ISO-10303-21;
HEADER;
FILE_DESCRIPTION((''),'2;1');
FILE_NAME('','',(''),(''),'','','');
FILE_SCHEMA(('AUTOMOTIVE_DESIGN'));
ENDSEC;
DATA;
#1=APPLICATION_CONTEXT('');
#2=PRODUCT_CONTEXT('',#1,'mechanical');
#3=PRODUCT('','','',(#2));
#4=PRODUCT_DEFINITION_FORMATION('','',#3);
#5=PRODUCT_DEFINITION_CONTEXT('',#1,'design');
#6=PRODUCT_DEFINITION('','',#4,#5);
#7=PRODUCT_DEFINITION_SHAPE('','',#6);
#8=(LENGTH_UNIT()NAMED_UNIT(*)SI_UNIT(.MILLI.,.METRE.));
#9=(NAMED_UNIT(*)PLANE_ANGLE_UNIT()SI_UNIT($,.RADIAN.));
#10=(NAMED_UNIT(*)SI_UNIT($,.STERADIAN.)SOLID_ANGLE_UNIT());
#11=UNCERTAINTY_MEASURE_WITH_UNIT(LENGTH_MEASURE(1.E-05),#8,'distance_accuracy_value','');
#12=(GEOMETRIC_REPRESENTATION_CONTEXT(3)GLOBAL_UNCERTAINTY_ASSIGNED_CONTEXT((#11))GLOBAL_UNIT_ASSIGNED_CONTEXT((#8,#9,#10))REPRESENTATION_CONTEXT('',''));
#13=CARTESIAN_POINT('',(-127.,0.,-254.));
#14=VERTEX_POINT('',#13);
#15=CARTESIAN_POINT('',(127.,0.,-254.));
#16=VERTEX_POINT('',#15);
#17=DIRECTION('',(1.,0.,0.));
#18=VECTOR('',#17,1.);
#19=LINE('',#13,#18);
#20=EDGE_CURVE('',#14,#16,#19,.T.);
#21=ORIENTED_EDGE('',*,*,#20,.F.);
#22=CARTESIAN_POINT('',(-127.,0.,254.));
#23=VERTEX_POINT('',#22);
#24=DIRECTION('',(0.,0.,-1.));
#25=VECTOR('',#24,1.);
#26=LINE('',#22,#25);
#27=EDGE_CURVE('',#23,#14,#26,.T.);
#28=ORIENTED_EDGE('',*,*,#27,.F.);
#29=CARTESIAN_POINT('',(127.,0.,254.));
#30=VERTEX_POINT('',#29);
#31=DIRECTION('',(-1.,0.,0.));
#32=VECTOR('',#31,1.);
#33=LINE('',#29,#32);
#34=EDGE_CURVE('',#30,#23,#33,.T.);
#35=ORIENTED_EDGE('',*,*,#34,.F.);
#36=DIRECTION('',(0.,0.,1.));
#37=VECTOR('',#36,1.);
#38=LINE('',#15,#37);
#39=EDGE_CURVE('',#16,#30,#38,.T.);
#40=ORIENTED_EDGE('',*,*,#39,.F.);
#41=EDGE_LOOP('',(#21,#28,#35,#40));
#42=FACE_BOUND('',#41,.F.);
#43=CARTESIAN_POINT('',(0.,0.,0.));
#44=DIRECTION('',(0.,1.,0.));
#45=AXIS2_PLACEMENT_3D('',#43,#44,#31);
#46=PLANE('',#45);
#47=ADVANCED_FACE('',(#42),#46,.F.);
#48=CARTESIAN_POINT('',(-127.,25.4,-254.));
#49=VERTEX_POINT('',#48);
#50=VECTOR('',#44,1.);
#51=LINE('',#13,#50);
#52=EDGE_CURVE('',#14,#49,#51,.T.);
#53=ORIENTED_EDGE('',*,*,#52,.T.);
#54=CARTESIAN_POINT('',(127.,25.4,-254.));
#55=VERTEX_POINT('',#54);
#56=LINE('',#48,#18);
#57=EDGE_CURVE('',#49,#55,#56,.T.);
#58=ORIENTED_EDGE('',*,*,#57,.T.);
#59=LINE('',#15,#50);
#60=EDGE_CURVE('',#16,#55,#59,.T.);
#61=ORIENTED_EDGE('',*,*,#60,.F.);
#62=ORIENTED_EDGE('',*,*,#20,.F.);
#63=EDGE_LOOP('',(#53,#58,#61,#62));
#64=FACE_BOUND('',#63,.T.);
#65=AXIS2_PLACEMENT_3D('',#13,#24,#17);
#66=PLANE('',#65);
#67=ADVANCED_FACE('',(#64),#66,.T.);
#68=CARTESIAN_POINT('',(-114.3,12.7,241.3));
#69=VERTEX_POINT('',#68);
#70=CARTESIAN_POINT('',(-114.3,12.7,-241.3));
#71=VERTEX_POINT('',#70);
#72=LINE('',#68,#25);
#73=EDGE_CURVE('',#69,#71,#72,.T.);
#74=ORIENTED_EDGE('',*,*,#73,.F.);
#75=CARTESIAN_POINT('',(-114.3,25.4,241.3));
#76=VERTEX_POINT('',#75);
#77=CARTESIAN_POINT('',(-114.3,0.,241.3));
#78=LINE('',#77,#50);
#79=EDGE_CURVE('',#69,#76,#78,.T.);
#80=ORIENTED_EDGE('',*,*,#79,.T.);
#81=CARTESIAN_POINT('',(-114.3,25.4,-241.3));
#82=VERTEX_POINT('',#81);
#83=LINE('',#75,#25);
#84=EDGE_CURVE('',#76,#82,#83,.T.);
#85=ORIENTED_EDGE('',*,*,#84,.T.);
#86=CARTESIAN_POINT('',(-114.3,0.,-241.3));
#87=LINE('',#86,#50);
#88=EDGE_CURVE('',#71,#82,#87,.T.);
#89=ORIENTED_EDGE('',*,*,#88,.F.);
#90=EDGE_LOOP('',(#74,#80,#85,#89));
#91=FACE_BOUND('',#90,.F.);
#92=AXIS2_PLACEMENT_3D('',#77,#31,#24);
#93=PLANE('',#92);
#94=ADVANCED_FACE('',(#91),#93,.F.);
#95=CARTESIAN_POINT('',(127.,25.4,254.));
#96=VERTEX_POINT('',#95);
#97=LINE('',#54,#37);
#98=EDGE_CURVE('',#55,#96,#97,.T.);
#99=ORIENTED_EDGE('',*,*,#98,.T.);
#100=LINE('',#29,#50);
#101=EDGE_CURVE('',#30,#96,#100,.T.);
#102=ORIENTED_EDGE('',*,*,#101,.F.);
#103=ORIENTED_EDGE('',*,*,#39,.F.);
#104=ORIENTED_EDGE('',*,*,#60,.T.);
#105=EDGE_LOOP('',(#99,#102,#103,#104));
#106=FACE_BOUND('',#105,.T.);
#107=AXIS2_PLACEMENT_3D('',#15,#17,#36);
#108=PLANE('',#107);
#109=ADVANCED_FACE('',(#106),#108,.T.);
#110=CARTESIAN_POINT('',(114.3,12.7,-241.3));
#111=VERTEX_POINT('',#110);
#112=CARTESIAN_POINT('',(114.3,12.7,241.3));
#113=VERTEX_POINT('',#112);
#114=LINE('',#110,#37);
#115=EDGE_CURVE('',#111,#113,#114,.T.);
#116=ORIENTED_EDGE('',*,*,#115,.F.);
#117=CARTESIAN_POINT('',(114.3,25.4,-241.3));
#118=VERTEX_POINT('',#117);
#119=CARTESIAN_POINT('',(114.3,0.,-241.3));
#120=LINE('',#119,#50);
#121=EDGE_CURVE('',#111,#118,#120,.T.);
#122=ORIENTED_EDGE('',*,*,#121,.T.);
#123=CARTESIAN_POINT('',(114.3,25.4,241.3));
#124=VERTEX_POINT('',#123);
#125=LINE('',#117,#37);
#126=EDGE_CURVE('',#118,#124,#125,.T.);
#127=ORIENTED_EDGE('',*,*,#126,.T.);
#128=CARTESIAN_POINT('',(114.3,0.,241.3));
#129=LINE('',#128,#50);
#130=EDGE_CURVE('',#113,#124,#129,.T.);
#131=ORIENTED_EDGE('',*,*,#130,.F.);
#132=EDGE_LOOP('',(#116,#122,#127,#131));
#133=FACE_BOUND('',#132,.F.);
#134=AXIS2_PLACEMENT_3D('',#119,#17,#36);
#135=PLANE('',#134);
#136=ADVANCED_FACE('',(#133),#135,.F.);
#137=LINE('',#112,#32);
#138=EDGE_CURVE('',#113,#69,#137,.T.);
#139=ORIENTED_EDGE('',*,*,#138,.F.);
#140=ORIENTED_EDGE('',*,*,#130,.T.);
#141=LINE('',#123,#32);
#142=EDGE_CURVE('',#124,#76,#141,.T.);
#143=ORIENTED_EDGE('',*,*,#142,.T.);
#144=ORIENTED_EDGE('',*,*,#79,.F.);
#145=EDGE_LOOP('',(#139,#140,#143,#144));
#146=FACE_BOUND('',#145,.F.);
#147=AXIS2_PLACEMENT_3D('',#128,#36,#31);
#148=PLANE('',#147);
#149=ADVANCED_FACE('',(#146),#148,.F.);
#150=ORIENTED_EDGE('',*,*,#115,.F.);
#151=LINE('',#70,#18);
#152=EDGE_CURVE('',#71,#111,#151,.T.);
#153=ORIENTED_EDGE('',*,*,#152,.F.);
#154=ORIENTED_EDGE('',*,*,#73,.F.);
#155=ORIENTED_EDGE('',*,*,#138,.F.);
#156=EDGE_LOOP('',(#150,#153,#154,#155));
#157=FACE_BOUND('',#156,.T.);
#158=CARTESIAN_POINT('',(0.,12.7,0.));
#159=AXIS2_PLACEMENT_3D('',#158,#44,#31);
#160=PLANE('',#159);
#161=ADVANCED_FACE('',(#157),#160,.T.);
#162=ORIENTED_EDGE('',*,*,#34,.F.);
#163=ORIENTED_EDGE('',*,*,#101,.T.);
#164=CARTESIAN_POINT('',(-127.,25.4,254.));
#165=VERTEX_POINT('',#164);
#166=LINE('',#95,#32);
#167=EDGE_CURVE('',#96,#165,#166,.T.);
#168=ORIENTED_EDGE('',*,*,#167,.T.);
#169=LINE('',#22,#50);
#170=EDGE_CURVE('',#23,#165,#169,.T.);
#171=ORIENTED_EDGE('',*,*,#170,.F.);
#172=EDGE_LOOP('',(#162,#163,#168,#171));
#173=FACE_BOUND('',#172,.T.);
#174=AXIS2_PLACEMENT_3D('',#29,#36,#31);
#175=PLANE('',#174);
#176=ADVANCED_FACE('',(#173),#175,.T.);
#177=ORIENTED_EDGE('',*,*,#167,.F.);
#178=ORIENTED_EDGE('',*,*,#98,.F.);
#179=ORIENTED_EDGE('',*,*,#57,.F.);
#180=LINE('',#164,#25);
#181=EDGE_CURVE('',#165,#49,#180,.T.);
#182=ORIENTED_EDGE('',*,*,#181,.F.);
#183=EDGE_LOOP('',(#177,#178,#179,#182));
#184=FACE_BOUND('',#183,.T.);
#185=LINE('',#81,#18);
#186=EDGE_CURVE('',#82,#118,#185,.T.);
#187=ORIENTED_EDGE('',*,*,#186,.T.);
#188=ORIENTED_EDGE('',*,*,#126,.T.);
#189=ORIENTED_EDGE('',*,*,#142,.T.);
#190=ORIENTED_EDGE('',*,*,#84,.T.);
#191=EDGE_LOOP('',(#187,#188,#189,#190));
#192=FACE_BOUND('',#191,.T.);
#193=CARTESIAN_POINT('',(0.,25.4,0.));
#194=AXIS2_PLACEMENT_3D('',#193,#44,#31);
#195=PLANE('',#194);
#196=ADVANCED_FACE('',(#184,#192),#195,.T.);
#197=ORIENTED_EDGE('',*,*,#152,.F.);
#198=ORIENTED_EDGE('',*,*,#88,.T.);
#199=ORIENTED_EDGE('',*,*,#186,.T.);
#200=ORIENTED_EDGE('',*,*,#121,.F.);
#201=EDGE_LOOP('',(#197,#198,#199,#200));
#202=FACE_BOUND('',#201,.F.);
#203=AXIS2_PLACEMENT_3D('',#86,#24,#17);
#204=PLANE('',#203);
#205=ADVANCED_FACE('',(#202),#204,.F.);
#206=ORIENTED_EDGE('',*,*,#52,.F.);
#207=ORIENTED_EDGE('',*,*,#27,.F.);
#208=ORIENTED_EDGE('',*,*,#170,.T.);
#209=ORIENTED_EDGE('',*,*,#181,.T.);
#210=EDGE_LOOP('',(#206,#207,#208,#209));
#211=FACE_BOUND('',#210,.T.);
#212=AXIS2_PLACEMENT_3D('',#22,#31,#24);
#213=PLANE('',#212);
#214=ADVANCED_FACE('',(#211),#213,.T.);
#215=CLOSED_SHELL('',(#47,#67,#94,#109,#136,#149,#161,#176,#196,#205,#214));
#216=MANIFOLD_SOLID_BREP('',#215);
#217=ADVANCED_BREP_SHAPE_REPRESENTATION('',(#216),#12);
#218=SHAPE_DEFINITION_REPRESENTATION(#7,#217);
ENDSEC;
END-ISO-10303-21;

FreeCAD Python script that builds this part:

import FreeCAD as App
import Part
import Sketcher
from FreeCAD import Vector
Q = App.Units.Quantity

doc = App.newDocument("Part")
body = doc.addObject("PartDesign::Body", "Body")

sketch1 = body.newObject("Sketcher::SketchObject", "Sketch")
sketch1.AttachmentSupport = (doc.getObject("XZ_Plane"), [""])
sketch1.MapMode = "FlatFace"
sketch1.addGeometry(Part.LineSegment(Vector(-114, 241, 0), Vector(114, 241, 0)), False)
sketch1.addGeometry(Part.LineSegment(Vector(114, 241, 0), Vector(114, -241, 0)), False)
sketch1.addGeometry(Part.LineSegment(Vector(114, -241, 0), Vector(-114, -241, 0)), False)
sketch1.addGeometry(Part.LineSegment(Vector(-114, -241, 0), Vector(-114, 241, 0)), False)
sketch1.addConstraint(Sketcher.Constraint("Coincident", 0, 2, 1, 1))
sketch1.addConstraint(Sketcher.Constraint("Coincident", 1, 2, 2, 1))
sketch1.addConstraint(Sketcher.Constraint("Coincident", 2, 2, 3, 1))
sketch1.addConstraint(Sketcher.Constraint("Coincident", 3, 2, 0, 1))
sketch1.addConstraint(Sketcher.Constraint("Horizontal", 0))
sketch1.addConstraint(Sketcher.Constraint("Vertical", 1))
sketch1.addConstraint(Sketcher.Constraint("Horizontal", 2))
sketch1.addConstraint(Sketcher.Constraint("Vertical", 3))
sketch1.addConstraint(Sketcher.Constraint("Symmetric", 0, 2, 2, 2, -1, 1))
sketch1.addConstraint(Sketcher.Constraint("DistanceX", 0, 1, 0, 2, Q("9 in")))
sketch1.addConstraint(Sketcher.Constraint("DistanceY", 1, 2, 1, 1, Q("19 in")))
pad1 = body.newObject("PartDesign::Pad", "Pad")
pad1.Profile = sketch1
pad1.Length = Q("0.5 in")
pad1.Reversed = True

sketch2 = body.newObject("Sketcher::SketchObject", "Sketch001")
sketch2.AttachmentSupport = (doc.getObject("XZ_Plane"), [""])
sketch2.MapMode = "FlatFace"
sketch2.addGeometry(Part.LineSegment(Vector(-127, 254, 0), Vector(127, 254, 0)), False)
sketch2.addGeometry(Part.LineSegment(Vector(127, 254, 0), Vector(127, -254, 0)), False)
sketch2.addGeometry(Part.LineSegment(Vector(127, -254, 0), Vector(-127, -254, 0)), False)
sketch2.addGeometry(Part.LineSegment(Vector(-127, -254, 0), Vector(-127, 254, 0)), False)
sketch2.addGeometry(Part.LineSegment(Vector(114, -241, 0), Vector(114, 241, 0)), False)
sketch2.addGeometry(Part.LineSegment(Vector(114, 241, 0), Vector(-114, 241, 0)), False)
sketch2.addGeometry(Part.LineSegment(Vector(-114, 241, 0), Vector(-114, -241, 0)), False)
sketch2.addGeometry(Part.LineSegment(Vector(-114, -241, 0), Vector(114, -241, 0)), False)
sketch2.addConstraint(Sketcher.Constraint("Coincident", 0, 2, 1, 1))
sketch2.addConstraint(Sketcher.Constraint("Coincident", 1, 2, 2, 1))
sketch2.addConstraint(Sketcher.Constraint("Coincident", 2, 2, 3, 1))
sketch2.addConstraint(Sketcher.Constraint("Coincident", 3, 2, 0, 1))
sketch2.addConstraint(Sketcher.Constraint("Coincident", 4, 2, 5, 1))
sketch2.addConstraint(Sketcher.Constraint("Coincident", 5, 2, 6, 1))
sketch2.addConstraint(Sketcher.Constraint("Coincident", 6, 2, 7, 1))
sketch2.addConstraint(Sketcher.Constraint("Coincident", 7, 2, 4, 1))
sketch2.addConstraint(Sketcher.Constraint("Horizontal", 0))
sketch2.addConstraint(Sketcher.Constraint("Vertical", 1))
sketch2.addConstraint(Sketcher.Constraint("Horizontal", 2))
sketch2.addConstraint(Sketcher.Constraint("Vertical", 3))
sketch2.addConstraint(Sketcher.Constraint("Vertical", 4))
sketch2.addConstraint(Sketcher.Constraint("Horizontal", 5))
sketch2.addConstraint(Sketcher.Constraint("Vertical", 6))
sketch2.addConstraint(Sketcher.Constraint("Horizontal", 7))
sketch2.addConstraint(Sketcher.Constraint("Symmetric", 0, 2, 2, 2, -1, 1))
sketch2.addConstraint(Sketcher.Constraint("Symmetric", 4, 2, 6, 2, -1, 1))
sketch2.addConstraint(Sketcher.Constraint("DistanceX", 0, 1, 0, 2, Q("10 in")))
sketch2.addConstraint(Sketcher.Constraint("DistanceX", 5, 2, 5, 1, Q("9 in")))
sketch2.addConstraint(Sketcher.Constraint("DistanceY", 1, 2, 1, 1, Q("20 in")))
sketch2.addConstraint(Sketcher.Constraint("DistanceY", 4, 1, 4, 2, Q("19 in")))
pad2 = body.newObject("PartDesign::Pad", "Pad001")
pad2.Profile = sketch2
pad2.Length = Q("1 in")
pad2.Reversed = True

doc.recompute()
